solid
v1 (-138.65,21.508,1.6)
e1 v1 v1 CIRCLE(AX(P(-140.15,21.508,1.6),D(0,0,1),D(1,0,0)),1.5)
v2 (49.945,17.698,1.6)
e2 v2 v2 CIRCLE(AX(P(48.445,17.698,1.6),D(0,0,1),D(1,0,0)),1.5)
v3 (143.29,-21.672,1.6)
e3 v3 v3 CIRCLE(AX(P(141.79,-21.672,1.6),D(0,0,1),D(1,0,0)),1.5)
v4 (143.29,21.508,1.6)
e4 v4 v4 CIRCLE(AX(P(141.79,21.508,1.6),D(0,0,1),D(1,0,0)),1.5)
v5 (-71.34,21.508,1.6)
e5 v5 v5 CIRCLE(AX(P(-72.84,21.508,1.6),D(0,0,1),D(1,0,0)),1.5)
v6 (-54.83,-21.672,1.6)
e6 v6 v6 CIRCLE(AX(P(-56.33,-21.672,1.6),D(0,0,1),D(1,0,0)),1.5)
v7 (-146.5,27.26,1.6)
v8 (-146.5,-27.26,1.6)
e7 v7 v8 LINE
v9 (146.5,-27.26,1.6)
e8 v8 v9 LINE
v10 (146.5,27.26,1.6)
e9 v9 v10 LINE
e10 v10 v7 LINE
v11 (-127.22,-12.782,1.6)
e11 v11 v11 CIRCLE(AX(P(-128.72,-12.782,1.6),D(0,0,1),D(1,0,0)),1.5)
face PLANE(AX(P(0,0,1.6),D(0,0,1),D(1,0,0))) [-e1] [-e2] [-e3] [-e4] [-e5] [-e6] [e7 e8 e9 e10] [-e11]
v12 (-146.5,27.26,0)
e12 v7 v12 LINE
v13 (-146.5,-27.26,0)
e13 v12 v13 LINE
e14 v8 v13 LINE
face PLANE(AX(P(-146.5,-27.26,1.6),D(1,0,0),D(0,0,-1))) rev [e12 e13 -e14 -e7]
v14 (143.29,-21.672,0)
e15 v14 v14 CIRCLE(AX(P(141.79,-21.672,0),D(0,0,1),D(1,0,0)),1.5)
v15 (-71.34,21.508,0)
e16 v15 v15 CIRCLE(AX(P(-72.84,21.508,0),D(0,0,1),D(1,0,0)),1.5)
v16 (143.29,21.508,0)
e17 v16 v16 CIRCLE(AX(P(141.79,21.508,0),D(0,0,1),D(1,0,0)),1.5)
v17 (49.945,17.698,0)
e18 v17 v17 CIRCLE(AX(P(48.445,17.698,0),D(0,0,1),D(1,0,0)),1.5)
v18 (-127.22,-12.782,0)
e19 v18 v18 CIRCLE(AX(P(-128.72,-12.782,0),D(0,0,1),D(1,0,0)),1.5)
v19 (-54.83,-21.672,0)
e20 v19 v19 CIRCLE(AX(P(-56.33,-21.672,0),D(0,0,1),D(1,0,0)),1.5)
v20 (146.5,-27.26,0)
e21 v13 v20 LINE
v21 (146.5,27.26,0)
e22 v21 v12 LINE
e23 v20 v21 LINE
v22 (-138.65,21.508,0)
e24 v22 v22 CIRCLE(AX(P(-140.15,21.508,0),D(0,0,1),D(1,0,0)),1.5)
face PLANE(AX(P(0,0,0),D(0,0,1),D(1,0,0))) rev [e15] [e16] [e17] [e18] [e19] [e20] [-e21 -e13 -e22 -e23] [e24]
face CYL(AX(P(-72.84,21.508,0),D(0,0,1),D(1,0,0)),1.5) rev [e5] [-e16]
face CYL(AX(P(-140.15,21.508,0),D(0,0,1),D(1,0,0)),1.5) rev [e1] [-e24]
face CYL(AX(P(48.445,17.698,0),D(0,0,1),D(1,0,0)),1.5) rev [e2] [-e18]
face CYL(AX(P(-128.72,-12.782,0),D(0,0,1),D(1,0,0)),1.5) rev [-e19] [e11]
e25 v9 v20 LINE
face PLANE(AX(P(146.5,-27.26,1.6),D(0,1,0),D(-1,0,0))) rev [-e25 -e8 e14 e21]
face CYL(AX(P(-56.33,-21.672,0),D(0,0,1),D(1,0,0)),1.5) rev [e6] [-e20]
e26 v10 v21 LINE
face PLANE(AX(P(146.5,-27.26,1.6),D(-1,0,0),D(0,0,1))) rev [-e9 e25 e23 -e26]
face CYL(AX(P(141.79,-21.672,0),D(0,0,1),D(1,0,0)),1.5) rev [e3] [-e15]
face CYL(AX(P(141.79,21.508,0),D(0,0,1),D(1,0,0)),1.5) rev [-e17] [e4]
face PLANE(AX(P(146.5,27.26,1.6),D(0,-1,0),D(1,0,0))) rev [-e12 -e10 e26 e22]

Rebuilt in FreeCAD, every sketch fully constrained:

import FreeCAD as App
import Part
import Sketcher
from FreeCAD import Vector
Q = App.Units.Quantity

doc = App.newDocument("Part")
body = doc.addObject("PartDesign::Body", "Body")

# Sketch on XY plane
sketch1 = body.newObject("Sketcher::SketchObject", "Sketch")
sketch1.AttachmentSupport = (doc.getObject("XY_Plane"), [""])
sketch1.MapMode = "FlatFace"
sketch1.addGeometry(Part.LineSegment(Vector(-146, 27, 0), Vector(-146, -27, 0)), False)
sketch1.addGeometry(Part.LineSegment(Vector(-146, -27, 0), Vector(146, -27, 0)), False)
sketch1.addGeometry(Part.LineSegment(Vector(146, -27, 0), Vector(146, 27, 0)), False)
sketch1.addGeometry(Part.LineSegment(Vector(146, 27, 0), Vector(-146, 27, 0)), False)
sketch1.addConstraint(Sketcher.Constraint("Coincident", 0, 2, 1, 1))
sketch1.addConstraint(Sketcher.Constraint("Coincident", 1, 2, 2, 1))
sketch1.addConstraint(Sketcher.Constraint("Coincident", 2, 2, 3, 1))
sketch1.addConstraint(Sketcher.Constraint("Coincident", 3, 2, 0, 1))
sketch1.addConstraint(Sketcher.Constraint("Vertical", 0))
sketch1.addConstraint(Sketcher.Constraint("Horizontal", 1))
sketch1.addConstraint(Sketcher.Constraint("Vertical", 2))
sketch1.addConstraint(Sketcher.Constraint("Horizontal", 3))
sketch1.addConstraint(Sketcher.Constraint("Symmetric", 0, 2, 2, 2, -1, 1))
sketch1.addConstraint(Sketcher.Constraint("DistanceX", 1, 1, 1, 2, Q("293 mm")))
sketch1.addConstraint(Sketcher.Constraint("DistanceY", 0, 2, 0, 1, Q("54.52 mm")))
pad1 = body.newObject("PartDesign::Pad", "Pad")
pad1.Profile = sketch1
pad1.Length = 1.6

# Sketch on XY plane
sketch2 = body.newObject("Sketcher::SketchObject", "Sketch001")
sketch2.AttachmentSupport = (doc.getObject("XY_Plane"), [""])
sketch2.MapMode = "FlatFace"
sketch2.AttachmentOffset = App.Placement(Vector(0, 0, 1.6), App.Rotation())
sketch2.addGeometry(Part.Circle(Vector(-140.2, 21.5, 0), Vector(0, 0, 1), 1.5), False)
sketch2.addGeometry(Part.Circle(Vector(-72.8, 21.5, 0), Vector(0, 0, 1), 1.5), False)
sketch2.addGeometry(Part.Circle(Vector(48.4, 17.7, 0), Vector(0, 0, 1), 1.5), False)
sketch2.addGeometry(Part.Circle(Vector(141.8, 21.5, 0), Vector(0, 0, 1), 1.5), False)
sketch2.addGeometry(Part.Circle(Vector(-128.7, -12.8, 0), Vector(0, 0, 1), 1.5), False)
sketch2.addGeometry(Part.Circle(Vector(-56.3, -21.7, 0), Vector(0, 0, 1), 1.5), False)
sketch2.addGeometry(Part.Circle(Vector(141.8, -21.7, 0), Vector(0, 0, 1), 1.5), False)
sketch2.addConstraint(Sketcher.Constraint("Equal", 0, 1))
sketch2.addConstraint(Sketcher.Constraint("Equal", 1, 2))
sketch2.addConstraint(Sketcher.Constraint("Equal", 2, 3))
sketch2.addConstraint(Sketcher.Constraint("Equal", 3, 4))
sketch2.addConstraint(Sketcher.Constraint("Equal", 4, 5))
sketch2.addConstraint(Sketcher.Constraint("Equal", 5, 6))
sketch2.addConstraint(Sketcher.Constraint("Horizontal", 0, 3, 1, 3))
sketch2.addConstraint(Sketcher.Constraint("Horizontal", 1, 3, 3, 3))
sketch2.addConstraint(Sketcher.Constraint("Horizontal", 5, 3, 6, 3))
sketch2.addConstraint(Sketcher.Constraint("Vertical", 3, 3, 6, 3))
sketch2.addConstraint(Sketcher.Constraint("Diameter", 0, Q("3 mm")))
sketch2.addConstraint(Sketcher.Constraint("DistanceX", 0, 3, -1, 1, Q("140.15 mm")))
sketch2.addConstraint(Sketcher.Constraint("DistanceX", 1, 3, -1, 1, Q("72.84 mm")))
sketch2.addConstraint(Sketcher.Constraint("DistanceX", -1, 1, 3, 3, Q("141.79 mm")))
sketch2.addConstraint(Sketcher.Constraint("DistanceX", 4, 3, -1, 1, Q("128.72 mm")))
sketch2.addConstraint(Sketcher.Constraint("DistanceX", 5, 3, -1, 1, Q("56.33 mm")))
sketch2.addConstraint(Sketcher.Constraint("DistanceY", 2, 3, 1, 3, Q("3.81 mm")))
sketch2.addConstraint(Sketcher.Constraint("DistanceY", 4, 3, 0, 3, Q("34.29 mm")))
sketch2.addConstraint(Sketcher.Constraint("DistanceY", 5, 3, 1, 3, Q("43.18 mm")))
sketch2.addConstraint(Sketcher.Constraint("DistanceY", -1, 1, 0, 3, Q("21.508 mm")))
sketch2.addConstraint(Sketcher.Constraint("DistanceX", -1, 1, 2, 3, Q("48.445 mm")))
pocket1 = body.newObject("PartDesign::Pocket", "Pocket")
pocket1.Profile = sketch2
pocket1.Type = "ThroughAll"

doc.recompute()
